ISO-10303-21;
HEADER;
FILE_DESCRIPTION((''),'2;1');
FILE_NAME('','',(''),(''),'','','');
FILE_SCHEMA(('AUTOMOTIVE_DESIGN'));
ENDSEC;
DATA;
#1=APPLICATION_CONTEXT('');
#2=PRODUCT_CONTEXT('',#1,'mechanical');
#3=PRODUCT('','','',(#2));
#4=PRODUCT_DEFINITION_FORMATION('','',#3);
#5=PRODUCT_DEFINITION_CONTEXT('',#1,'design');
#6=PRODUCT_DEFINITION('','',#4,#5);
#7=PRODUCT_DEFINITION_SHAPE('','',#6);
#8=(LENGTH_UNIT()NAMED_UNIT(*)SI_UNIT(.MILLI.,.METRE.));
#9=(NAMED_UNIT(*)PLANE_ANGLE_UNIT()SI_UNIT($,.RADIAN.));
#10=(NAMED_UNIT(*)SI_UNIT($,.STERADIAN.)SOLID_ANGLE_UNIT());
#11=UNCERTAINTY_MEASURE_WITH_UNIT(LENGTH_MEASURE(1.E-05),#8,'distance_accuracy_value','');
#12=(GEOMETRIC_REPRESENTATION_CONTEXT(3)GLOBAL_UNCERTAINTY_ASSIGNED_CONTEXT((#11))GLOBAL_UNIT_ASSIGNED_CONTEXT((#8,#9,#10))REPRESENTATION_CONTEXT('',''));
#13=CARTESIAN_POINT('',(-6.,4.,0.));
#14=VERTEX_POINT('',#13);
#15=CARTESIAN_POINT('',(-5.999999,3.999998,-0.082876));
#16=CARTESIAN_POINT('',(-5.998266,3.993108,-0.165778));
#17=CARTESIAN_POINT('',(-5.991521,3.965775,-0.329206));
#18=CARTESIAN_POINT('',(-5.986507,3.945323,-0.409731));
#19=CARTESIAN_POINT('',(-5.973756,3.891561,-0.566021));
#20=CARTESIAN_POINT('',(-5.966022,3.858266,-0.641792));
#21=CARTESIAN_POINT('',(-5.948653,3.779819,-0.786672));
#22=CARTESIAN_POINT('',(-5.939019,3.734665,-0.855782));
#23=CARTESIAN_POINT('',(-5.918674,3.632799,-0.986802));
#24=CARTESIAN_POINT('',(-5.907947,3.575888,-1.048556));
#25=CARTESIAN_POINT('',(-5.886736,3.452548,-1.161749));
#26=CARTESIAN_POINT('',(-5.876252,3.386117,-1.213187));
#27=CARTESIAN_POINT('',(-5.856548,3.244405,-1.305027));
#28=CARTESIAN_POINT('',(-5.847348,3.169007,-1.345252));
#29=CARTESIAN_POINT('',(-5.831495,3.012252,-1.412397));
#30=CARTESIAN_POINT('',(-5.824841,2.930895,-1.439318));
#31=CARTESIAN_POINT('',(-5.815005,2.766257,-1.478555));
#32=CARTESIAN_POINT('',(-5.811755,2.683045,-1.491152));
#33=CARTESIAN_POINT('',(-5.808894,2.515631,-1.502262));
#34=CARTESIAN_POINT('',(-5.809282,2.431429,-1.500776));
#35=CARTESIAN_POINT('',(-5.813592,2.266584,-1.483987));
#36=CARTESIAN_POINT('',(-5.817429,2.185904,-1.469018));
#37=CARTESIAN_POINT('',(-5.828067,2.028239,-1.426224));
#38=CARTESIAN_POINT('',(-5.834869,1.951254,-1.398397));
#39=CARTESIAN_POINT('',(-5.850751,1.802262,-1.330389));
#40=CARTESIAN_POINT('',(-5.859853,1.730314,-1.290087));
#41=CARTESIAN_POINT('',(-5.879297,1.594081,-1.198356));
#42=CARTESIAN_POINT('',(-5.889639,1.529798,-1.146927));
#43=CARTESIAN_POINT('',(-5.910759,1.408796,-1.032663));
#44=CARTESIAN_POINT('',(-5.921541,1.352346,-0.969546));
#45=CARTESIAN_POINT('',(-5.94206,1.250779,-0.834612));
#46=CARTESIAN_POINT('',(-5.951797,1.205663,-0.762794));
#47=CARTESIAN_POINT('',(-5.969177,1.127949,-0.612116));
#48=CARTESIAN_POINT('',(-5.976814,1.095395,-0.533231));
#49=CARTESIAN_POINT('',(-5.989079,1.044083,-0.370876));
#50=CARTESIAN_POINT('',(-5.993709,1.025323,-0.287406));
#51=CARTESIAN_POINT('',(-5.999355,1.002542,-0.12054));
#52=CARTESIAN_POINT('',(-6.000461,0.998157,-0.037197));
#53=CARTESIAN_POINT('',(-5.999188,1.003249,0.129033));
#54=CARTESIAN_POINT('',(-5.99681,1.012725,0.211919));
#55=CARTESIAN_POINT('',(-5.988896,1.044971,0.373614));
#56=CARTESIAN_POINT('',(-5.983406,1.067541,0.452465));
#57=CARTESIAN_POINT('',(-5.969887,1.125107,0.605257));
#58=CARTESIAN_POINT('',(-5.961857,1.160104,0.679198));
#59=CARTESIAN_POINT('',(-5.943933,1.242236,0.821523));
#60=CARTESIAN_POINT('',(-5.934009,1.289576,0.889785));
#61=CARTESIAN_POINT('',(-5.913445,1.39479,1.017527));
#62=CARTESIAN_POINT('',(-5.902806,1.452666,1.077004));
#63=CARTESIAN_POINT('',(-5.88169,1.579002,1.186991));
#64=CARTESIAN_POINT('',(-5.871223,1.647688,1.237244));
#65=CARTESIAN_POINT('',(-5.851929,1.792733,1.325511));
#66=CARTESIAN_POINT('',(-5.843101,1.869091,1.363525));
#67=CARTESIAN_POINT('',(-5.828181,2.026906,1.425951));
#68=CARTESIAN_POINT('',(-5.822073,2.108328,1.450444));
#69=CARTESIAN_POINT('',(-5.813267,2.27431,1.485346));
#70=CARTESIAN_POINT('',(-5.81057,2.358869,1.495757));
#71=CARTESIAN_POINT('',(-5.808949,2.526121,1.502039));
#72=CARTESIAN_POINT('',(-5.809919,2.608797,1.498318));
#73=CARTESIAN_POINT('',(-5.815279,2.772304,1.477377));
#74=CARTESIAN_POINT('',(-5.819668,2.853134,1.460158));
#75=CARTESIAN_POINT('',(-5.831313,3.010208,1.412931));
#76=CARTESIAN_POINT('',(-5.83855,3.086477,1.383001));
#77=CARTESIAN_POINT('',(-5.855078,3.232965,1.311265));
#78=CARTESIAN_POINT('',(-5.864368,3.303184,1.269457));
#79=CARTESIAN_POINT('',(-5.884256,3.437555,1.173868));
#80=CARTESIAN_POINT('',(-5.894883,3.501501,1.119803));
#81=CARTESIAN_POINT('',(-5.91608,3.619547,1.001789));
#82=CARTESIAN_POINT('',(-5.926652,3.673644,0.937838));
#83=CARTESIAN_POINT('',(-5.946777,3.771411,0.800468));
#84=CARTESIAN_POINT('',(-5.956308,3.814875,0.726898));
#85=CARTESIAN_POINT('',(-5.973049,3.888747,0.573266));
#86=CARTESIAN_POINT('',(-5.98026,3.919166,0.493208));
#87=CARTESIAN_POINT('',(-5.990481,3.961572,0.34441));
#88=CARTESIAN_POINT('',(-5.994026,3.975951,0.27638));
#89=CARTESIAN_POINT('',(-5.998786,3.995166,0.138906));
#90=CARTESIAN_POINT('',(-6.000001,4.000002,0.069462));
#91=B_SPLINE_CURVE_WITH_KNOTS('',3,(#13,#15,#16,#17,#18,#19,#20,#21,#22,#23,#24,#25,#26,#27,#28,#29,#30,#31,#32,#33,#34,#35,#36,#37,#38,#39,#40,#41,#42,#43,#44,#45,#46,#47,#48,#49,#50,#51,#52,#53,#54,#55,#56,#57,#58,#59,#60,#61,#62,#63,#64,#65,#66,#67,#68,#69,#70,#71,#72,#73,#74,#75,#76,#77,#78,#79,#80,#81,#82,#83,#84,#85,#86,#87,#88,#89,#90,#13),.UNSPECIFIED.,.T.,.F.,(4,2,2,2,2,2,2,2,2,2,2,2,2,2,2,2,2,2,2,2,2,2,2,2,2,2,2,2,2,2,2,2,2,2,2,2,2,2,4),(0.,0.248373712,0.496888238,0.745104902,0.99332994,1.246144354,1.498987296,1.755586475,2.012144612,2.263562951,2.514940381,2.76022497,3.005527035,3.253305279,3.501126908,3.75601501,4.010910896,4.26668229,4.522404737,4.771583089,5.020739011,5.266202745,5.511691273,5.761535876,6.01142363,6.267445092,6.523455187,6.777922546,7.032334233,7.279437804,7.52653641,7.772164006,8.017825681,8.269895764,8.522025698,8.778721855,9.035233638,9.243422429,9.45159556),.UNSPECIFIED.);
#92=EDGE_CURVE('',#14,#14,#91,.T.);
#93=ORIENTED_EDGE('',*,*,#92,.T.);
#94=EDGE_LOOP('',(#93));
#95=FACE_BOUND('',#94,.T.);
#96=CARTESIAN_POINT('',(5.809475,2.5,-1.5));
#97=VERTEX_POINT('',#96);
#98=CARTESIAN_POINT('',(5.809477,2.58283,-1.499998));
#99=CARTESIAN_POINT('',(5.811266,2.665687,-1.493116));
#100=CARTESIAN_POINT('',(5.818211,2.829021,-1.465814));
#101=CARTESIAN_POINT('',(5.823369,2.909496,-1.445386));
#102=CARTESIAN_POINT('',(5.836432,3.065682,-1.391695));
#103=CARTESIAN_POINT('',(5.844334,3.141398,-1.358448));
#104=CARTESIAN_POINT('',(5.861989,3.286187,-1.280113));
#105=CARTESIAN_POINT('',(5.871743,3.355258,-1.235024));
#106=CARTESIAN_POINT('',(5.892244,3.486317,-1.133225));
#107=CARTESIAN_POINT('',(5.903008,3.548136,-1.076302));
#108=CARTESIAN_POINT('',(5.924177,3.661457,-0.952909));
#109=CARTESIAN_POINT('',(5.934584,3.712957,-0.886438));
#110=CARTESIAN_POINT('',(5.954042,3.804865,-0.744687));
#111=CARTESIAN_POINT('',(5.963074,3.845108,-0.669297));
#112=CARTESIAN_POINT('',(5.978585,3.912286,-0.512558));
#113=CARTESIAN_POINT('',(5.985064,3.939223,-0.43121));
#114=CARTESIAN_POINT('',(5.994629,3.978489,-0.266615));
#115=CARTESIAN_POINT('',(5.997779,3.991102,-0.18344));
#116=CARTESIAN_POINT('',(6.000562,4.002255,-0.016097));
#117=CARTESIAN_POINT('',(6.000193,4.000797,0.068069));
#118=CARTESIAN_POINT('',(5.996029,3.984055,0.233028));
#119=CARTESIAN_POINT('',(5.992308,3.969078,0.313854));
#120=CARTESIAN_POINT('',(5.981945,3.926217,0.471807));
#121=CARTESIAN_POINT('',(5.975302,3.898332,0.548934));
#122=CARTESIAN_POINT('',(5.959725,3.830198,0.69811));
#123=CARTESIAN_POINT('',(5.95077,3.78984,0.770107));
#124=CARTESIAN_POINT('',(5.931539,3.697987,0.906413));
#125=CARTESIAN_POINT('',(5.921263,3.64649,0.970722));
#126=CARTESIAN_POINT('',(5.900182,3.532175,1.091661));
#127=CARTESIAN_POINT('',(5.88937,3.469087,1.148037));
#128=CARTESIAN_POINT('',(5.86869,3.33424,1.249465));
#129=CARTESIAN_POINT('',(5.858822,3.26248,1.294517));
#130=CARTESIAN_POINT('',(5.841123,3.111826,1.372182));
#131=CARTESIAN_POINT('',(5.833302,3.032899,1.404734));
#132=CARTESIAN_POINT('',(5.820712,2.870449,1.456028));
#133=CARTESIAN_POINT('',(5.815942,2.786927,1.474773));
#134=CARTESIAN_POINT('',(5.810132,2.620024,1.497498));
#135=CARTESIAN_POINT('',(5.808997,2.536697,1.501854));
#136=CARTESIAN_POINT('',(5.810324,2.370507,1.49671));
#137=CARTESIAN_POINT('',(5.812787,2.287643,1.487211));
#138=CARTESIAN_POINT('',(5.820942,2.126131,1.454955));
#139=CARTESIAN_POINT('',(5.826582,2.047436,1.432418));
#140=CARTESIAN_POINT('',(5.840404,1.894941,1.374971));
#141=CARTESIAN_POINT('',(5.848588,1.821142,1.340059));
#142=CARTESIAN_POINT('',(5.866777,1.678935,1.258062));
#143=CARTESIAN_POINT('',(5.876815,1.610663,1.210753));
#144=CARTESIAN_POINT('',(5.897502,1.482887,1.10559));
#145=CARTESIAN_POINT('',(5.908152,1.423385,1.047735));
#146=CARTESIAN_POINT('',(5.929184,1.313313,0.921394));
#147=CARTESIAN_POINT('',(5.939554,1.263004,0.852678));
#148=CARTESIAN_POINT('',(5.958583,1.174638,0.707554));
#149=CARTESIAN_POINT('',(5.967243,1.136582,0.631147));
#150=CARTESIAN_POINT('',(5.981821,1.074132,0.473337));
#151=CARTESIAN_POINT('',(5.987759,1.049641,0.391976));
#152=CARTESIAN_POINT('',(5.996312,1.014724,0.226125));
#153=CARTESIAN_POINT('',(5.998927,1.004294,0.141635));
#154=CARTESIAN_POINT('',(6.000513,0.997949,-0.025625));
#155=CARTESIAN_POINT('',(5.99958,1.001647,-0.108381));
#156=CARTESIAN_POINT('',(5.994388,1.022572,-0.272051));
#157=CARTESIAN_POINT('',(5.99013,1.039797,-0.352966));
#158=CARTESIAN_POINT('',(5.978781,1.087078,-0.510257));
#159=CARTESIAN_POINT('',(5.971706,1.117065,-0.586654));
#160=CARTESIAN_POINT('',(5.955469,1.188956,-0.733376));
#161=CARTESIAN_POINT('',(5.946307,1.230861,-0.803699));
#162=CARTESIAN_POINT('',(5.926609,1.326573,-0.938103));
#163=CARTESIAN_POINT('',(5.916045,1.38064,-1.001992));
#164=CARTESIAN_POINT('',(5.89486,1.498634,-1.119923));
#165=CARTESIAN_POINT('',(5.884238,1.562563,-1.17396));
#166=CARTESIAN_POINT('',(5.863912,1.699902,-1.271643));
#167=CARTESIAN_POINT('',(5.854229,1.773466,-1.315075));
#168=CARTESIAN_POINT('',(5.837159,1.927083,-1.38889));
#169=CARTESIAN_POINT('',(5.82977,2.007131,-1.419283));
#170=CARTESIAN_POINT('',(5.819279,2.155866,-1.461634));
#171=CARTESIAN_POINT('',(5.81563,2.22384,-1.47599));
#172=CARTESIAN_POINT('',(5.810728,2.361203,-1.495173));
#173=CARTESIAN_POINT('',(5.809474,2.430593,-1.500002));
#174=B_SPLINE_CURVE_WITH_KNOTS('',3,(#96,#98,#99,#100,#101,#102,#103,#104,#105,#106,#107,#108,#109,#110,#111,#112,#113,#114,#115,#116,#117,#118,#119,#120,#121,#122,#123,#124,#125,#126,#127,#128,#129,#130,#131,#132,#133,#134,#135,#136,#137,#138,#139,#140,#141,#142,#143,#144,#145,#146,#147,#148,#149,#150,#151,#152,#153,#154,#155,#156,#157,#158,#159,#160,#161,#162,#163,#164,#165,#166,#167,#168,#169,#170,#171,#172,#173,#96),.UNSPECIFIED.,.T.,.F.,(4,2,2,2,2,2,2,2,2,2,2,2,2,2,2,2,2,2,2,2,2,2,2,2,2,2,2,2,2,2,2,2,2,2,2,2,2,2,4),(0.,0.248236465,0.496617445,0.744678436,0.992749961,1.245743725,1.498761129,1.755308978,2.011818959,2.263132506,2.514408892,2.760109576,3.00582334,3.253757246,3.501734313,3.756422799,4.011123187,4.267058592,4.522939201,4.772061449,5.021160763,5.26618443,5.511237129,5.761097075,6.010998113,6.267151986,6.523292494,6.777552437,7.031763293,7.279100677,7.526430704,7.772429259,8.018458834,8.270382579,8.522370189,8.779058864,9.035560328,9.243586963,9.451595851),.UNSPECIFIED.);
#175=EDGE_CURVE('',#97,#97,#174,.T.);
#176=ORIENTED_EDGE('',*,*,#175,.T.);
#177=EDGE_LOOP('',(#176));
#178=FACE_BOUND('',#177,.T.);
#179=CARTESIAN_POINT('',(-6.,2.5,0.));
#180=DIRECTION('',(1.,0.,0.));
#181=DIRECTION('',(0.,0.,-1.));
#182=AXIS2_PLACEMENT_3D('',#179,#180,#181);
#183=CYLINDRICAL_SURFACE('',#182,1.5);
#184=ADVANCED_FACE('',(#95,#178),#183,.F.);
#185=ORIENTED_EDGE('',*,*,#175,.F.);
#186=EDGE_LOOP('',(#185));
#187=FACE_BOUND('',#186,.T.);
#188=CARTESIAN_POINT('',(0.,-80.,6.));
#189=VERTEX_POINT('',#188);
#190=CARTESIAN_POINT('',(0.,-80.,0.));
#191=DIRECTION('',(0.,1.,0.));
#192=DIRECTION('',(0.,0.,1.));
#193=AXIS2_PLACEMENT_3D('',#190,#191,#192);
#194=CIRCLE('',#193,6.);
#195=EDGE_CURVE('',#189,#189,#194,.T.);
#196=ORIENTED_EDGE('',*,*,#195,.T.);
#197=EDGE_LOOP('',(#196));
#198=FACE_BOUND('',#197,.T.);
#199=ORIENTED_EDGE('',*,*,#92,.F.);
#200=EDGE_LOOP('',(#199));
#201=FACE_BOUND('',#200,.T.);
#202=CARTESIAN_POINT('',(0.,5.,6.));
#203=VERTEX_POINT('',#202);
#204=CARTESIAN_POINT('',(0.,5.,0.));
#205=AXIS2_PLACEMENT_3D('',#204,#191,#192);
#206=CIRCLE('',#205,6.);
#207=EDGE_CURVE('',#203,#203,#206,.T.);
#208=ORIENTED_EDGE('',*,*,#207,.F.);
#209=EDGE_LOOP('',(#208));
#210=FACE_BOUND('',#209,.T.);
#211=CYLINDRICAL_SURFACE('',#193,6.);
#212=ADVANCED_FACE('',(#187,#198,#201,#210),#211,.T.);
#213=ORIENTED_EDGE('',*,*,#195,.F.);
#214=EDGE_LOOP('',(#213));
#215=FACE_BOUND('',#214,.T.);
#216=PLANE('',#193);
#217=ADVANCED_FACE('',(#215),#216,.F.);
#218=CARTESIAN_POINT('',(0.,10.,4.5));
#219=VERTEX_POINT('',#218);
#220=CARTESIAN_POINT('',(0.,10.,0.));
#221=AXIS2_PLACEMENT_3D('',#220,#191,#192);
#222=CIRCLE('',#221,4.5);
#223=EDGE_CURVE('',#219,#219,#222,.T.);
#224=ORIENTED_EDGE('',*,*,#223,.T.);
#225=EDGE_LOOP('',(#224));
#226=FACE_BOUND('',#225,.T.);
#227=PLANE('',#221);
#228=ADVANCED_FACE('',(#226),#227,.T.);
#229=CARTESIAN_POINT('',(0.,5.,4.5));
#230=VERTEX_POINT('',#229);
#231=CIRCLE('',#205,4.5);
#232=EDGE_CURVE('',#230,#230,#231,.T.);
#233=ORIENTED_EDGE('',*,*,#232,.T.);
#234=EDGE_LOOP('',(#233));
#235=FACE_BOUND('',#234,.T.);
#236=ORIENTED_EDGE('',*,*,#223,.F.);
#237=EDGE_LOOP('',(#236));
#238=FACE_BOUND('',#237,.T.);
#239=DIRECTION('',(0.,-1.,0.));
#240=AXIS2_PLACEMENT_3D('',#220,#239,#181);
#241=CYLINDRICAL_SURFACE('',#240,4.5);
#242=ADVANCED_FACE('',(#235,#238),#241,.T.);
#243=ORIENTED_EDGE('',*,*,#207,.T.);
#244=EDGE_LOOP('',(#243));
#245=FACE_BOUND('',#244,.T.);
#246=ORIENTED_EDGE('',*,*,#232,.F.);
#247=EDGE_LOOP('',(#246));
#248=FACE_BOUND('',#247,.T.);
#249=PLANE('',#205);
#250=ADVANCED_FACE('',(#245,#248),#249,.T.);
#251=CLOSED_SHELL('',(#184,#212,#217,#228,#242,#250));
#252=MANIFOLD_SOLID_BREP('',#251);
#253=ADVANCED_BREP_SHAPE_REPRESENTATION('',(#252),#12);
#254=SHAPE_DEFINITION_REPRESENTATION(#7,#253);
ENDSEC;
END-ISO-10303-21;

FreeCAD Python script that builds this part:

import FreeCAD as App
import Part
import Sketcher
from FreeCAD import Vector
Q = App.Units.Quantity

doc = App.newDocument("Part")
body = doc.addObject("PartDesign::Body", "Body")

# Sketch on XZ plane
sketch1 = body.newObject("Sketcher::SketchObject", "Sketch")
sketch1.AttachmentSupport = (doc.getObject("XZ_Plane"), [""])
sketch1.MapMode = "FlatFace"
sketch1.addGeometry(Part.Circle(Vector(0, 0, 0), Vector(0, 0, 1), 6), False)
sketch1.addConstraint([
    Sketcher.Constraint("Coincident", 0, 3, -1, 1),
    Sketcher.Constraint("Diameter", 0, Q("12 mm")),
])
pad1 = body.newObject("PartDesign::Pad", "Pad")
pad1.Profile = sketch1
pad1.Length = 80

# Sketch on XZ plane
sketch2 = body.newObject("Sketcher::SketchObject", "Sketch001")
sketch2.AttachmentSupport = (doc.getObject("XZ_Plane"), [""])
sketch2.MapMode = "FlatFace"
sketch2.addGeometry(Part.Circle(Vector(0, 0, 0), Vector(0, 0, 1), 4.5), False)
sketch2.addConstraint([
    Sketcher.Constraint("Coincident", 0, 3, -1, 1),
    Sketcher.Constraint("Diameter", 0, Q("9 mm")),
])
pad2 = body.newObject("PartDesign::Pad", "Pad001")
pad2.Profile = sketch2
pad2.Length = 10
pad2.Reversed = True

# Sketch on XZ plane
sketch3 = body.newObject("Sketcher::SketchObject", "Sketch002")
sketch3.AttachmentSupport = (doc.getObject("XZ_Plane"), [""])
sketch3.MapMode = "FlatFace"
sketch3.AttachmentOffset = App.Placement(Vector(0, 0, -5), App.Rotation())
sketch3.addGeometry(Part.Circle(Vector(0, 0, 0), Vector(0, 0, 1), 6), False)
sketch3.addConstraint([
    Sketcher.Constraint("Coincident", 0, 3, -1, 1),
    Sketcher.Constraint("Diameter", 0, Q("12 mm")),
])
pad3 = body.newObject("PartDesign::Pad", "Pad002")
pad3.Profile = sketch3
pad3.Length = 5

# Sketch on YZ plane
sketch4 = body.newObject("Sketcher::SketchObject", "Sketch003")
sketch4.AttachmentSupport = (doc.getObject("YZ_Plane"), [""])
sketch4.MapMode = "FlatFace"
sketch4.addGeometry(Part.Circle(Vector(2.5, 0, 0), Vector(0, 0, 1), 1.5), False)
sketch4.addConstraint([
    Sketcher.Constraint("PointOnObject", 0, 3, -1),
    Sketcher.Constraint("Diameter", 0, Q("3 mm")),
    Sketcher.Constraint("DistanceX", -1, 1, 0, 3, Q("2.5 mm")),
])
pocket1 = body.newObject("PartDesign::Pocket", "Pocket")
pocket1.Profile = sketch4
pocket1.Type = "ThroughAll"
pocket1.Midplane = True

doc.recompute()
